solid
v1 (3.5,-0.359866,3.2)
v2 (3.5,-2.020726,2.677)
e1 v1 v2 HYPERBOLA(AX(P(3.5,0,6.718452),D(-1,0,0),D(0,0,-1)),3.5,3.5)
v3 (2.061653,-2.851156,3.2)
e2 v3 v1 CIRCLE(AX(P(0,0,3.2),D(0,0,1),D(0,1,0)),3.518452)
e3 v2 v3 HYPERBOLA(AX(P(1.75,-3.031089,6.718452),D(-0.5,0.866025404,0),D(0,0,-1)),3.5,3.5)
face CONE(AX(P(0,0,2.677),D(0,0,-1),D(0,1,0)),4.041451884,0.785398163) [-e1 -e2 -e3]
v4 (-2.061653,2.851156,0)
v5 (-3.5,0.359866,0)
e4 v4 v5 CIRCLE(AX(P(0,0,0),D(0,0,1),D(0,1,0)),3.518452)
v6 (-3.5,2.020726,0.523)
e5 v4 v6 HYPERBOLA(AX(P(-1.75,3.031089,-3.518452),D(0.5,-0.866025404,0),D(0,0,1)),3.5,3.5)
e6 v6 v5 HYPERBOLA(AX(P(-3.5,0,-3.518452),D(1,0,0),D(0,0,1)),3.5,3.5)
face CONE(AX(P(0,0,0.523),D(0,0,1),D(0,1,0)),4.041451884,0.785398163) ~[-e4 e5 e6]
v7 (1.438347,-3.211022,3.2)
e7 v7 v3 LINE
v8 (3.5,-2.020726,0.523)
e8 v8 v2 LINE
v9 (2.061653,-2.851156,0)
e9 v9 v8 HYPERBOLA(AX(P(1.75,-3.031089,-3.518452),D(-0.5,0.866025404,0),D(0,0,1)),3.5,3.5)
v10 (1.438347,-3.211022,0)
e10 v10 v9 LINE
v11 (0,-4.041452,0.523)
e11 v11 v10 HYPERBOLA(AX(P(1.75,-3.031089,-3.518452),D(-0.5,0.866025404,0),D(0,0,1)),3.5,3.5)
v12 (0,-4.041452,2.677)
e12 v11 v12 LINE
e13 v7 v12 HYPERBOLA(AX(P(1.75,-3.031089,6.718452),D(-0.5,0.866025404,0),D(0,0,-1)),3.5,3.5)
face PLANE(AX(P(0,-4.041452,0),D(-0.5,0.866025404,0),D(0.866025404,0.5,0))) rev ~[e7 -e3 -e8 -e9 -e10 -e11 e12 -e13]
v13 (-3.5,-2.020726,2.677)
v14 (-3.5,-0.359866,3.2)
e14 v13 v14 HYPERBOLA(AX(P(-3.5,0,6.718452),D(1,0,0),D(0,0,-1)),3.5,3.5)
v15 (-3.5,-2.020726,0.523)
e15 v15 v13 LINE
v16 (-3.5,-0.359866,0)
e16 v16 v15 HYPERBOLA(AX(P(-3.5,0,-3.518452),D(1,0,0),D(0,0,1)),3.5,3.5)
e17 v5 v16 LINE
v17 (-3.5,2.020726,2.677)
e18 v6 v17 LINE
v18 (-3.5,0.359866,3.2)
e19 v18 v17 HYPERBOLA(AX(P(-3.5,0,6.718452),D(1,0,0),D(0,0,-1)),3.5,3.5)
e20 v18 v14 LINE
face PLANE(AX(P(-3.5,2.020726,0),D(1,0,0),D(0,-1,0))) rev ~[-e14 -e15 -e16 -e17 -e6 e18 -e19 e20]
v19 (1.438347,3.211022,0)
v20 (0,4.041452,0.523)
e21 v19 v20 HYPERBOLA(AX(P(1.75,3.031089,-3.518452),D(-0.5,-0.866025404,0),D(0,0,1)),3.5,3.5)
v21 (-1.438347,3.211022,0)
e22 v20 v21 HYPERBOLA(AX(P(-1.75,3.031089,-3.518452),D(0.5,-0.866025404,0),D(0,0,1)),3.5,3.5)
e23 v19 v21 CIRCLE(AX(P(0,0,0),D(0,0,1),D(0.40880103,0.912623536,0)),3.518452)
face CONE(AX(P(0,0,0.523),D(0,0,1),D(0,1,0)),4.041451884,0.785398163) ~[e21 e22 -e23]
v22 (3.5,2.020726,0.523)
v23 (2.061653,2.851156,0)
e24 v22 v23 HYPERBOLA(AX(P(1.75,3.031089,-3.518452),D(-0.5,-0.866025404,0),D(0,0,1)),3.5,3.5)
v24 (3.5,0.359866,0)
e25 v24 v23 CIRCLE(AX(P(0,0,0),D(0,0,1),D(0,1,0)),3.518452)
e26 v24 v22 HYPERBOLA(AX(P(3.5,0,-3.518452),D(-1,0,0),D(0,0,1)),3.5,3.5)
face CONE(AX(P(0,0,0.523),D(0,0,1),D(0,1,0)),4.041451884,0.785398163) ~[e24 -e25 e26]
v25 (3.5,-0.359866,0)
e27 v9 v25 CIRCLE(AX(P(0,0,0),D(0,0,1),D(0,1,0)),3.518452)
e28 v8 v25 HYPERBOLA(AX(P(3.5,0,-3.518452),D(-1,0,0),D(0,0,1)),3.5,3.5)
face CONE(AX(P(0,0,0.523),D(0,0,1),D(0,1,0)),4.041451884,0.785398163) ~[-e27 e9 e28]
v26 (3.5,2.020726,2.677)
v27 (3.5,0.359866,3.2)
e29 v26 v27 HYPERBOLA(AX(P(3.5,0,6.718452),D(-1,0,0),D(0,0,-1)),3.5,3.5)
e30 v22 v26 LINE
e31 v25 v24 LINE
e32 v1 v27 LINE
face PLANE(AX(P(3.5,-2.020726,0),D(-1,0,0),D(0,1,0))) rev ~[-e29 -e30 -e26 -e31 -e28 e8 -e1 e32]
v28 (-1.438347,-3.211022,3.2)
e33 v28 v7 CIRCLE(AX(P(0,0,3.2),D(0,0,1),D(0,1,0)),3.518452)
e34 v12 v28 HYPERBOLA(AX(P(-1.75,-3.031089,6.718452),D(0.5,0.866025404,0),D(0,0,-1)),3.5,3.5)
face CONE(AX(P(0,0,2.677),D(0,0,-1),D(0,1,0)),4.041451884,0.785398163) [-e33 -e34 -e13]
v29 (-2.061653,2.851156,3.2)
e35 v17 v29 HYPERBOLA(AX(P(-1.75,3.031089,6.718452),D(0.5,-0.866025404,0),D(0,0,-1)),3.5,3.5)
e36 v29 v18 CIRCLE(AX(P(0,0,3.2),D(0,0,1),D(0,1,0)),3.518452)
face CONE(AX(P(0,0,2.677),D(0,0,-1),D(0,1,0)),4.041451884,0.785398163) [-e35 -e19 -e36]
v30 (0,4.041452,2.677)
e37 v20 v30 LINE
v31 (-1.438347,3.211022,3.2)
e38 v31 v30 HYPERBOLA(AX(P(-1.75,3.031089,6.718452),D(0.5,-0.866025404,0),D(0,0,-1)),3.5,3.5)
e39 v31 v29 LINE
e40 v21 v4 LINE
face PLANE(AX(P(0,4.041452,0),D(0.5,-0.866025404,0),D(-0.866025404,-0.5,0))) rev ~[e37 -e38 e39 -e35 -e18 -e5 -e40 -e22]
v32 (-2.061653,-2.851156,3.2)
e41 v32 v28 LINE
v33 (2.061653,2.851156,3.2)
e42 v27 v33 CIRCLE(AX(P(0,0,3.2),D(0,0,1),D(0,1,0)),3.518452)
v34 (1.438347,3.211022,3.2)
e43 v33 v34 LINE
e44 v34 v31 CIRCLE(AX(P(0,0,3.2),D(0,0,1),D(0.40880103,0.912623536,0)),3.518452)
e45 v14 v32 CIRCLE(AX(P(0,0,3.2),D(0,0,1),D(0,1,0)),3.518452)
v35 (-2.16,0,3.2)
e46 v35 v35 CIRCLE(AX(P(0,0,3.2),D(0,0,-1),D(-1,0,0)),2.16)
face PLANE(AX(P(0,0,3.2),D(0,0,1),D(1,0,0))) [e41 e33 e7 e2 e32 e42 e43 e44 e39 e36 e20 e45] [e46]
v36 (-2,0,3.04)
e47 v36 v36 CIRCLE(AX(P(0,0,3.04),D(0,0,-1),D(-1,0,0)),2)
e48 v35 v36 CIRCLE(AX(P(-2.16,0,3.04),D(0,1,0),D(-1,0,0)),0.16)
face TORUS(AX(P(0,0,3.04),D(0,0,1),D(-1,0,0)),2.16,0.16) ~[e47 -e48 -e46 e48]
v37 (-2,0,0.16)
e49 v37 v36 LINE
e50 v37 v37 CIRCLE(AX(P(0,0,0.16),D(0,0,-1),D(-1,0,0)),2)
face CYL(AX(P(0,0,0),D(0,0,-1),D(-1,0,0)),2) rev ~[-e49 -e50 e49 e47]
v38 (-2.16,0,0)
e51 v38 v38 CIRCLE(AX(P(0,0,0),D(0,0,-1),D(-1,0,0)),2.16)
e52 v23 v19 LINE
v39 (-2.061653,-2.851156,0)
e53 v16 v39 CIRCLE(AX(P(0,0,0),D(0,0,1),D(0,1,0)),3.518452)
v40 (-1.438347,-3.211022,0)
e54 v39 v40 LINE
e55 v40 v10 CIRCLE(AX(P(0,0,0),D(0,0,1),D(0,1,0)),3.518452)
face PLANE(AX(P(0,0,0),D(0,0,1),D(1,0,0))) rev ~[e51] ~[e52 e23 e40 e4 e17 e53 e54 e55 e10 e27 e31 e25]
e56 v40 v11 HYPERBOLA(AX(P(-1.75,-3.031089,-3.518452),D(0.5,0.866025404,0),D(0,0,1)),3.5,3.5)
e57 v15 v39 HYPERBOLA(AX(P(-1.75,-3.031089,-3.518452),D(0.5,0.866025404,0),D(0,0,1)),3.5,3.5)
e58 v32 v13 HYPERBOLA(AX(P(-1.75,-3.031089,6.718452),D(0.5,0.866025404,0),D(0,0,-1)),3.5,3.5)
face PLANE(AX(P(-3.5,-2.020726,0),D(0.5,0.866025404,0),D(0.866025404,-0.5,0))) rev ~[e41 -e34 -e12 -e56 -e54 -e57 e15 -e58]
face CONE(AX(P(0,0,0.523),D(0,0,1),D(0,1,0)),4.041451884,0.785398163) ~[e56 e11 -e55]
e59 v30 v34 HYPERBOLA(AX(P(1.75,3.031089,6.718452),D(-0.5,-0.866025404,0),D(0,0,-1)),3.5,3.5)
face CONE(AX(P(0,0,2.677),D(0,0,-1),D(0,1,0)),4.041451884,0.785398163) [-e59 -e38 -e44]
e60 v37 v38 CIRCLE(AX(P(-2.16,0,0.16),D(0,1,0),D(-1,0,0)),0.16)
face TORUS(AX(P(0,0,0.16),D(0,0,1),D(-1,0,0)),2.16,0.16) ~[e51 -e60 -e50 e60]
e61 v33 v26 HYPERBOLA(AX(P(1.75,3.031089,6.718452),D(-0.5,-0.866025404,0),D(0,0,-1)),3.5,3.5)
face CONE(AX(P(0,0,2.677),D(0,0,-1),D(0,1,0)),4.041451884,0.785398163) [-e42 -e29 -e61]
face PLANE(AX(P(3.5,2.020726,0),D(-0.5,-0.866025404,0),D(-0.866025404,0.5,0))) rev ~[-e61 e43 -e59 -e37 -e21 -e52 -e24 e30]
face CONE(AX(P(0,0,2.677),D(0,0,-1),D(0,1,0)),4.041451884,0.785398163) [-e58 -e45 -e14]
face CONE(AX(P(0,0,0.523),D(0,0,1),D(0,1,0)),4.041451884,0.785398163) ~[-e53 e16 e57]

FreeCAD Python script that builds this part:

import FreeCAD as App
import Part
import Sketcher
from FreeCAD import Vector
Q = App.Units.Quantity


def edges_at(feature, points):
    """Names of the edges that pass closest to the given points."""
    edges = feature.Shape.Edges
    near = lambda p: min(range(len(edges)), key=lambda i: edges[i].distToShape(Part.Vertex(*p))[0])
    return sorted({f"Edge{near(p) + 1}" for p in points})


def add_polygon(sketch, points):
    """Adds a closed chain of lines whose ends are joined by coincident constraints."""
    first, n = sketch.GeometryCount, len(points)
    for a, b in zip(points, points[1:] + points[:1]):
        sketch.addGeometry(Part.LineSegment(App.Vector(*a, 0), App.Vector(*b, 0)), False)
    for i in range(n):
        sketch.addConstraint(Sketcher.Constraint("Coincident", first + i, 2, first + (i + 1) % n, 1))

doc = App.newDocument("Part")
body = doc.addObject("PartDesign::Body", "Body")

sketch1 = body.newObject("Sketcher::SketchObject", "Sketch")
sketch1.AttachmentSupport = (doc.getObject("XY_Plane"), [""])
sketch1.MapMode = "FlatFace"
add_polygon(sketch1, [(0, 4), (-3.5, 2), (-3.5, -2), (0, -4), (3.5, -2), (3.5, 2)])
sketch1.addConstraint([
    Sketcher.Constraint("Vertical", 1),
    Sketcher.Constraint("Vertical", 4),
    Sketcher.Constraint("Symmetric", 0, 2, 3, 2, -1, 1),
    Sketcher.Constraint("Symmetric", 2, 2, 5, 2, -1, 1),
    Sketcher.Constraint("PointOnObject", 2, 2, -2),
    Sketcher.Constraint("Parallel", 2, 5),
    Sketcher.Constraint("Horizontal", 1, 2, 3, 2),
    Sketcher.Constraint("Angle", 0, Q("-150 deg")),
    Sketcher.Constraint("DistanceX", 1, 2, 3, 2, Q("7 mm")),
    Sketcher.Constraint("DistanceY", 1, 2, 1, 1, Q("4.041452 mm")),
])
pad1 = body.newObject("PartDesign::Pad", "Pad")
pad1.Profile = sketch1
pad1.Length = 3.2

sketch2 = body.newObject("Sketcher::SketchObject", "Sketch001")
sketch2.AttachmentSupport = (doc.getObject("XY_Plane"), [""])
sketch2.MapMode = "FlatFace"
sketch2.addGeometry(Part.Circle(Vector(0, 0, 0), Vector(0, 0, 1), 2), False)
sketch2.addConstraint([
    Sketcher.Constraint("Coincident", 0, 3, -1, 1),
    Sketcher.Constraint("Diameter", 0, Q("4 mm")),
])
pocket1 = body.newObject("PartDesign::Pocket", "Pocket")
pocket1.Profile = sketch2
pocket1.Length = 3.2
pocket1.Reversed = True

sketch3 = body.newObject("Sketcher::SketchObject", "Sketch002")
sketch3.AttachmentSupport = (doc.getObject("YZ_Plane"), [""])
sketch3.MapMode = "FlatFace"
add_polygon(sketch3, [(3.5, 3.2), (4, 2.7), (4, 3.2)])
add_polygon(sketch3, [(4, 0), (4, 0.5), (3.5, 0)])
sketch3.addConstraint([
    Sketcher.Constraint("Vertical", 1),
    Sketcher.Constraint("Horizontal", 2),
    Sketcher.Constraint("Vertical", 3),
    Sketcher.Constraint("Horizontal", 5),
    Sketcher.Constraint("PointOnObject", 4, 2, -1),
    Sketcher.Constraint("Perpendicular", 0, 4),
    Sketcher.Constraint("Vertical", 1, 2, 3, 2),
    Sketcher.Constraint("Vertical", 2, 2, 4, 2),
    Sketcher.Constraint("Equal", 5, 1),
    Sketcher.Constraint("DistanceY", -1, 1, 1, 2, Q("3.2 mm")),
    Sketcher.Constraint("DistanceX", 2, 2, 2, 1, Q("0.523 mm")),
    Sketcher.Constraint("DistanceX", -1, 1, 0, 2, Q("4.041452 mm")),
])
groove = body.newObject("PartDesign::Groove", "Groove")
groove.Profile = sketch3
groove.ReferenceAxis = (sketch3, ["V_Axis"])
groove.Angle = 360
doc.recompute()

fillet = body.newObject("PartDesign::Fillet", "Fillet")
fillet.Base = (groove, edges_at(groove, [(2, 0, 3.2), (2, 0, 0)]))
fillet.Radius = 0.16

doc.recompute()
